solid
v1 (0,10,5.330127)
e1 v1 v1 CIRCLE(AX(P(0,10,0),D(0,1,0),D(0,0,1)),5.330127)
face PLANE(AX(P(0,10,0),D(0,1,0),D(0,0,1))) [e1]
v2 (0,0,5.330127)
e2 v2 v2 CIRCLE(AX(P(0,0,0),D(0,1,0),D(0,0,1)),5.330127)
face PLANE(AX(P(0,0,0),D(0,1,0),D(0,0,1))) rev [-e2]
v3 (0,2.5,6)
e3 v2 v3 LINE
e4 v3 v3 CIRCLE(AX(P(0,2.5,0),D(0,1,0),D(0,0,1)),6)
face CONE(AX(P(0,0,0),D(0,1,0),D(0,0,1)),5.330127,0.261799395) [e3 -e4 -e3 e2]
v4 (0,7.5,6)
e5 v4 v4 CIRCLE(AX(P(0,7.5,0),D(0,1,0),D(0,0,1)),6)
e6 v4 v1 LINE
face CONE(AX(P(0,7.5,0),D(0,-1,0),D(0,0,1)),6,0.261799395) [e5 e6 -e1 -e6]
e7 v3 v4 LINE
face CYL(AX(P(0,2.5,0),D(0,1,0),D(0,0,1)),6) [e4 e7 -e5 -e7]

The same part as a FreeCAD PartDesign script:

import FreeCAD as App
import Part
import Sketcher
from FreeCAD import Vector
Q = App.Units.Quantity


def add_polygon(sketch, points):
    """Adds a closed chain of lines whose ends are joined by coincident constraints."""
    first, n = sketch.GeometryCount, len(points)
    for a, b in zip(points, points[1:] + points[:1]):
        sketch.addGeometry(Part.LineSegment(App.Vector(*a, 0), App.Vector(*b, 0)), False)
    for i in range(n):
        sketch.addConstraint(Sketcher.Constraint("Coincident", first + i, 2, first + (i + 1) % n, 1))

doc = App.newDocument("Part")
body = doc.addObject("PartDesign::Body", "Body")

# Sketch on YZ plane
sketch1 = body.newObject("Sketcher::SketchObject", "Sketch")
sketch1.AttachmentSupport = (doc.getObject("YZ_Plane"), [""])
sketch1.MapMode = "FlatFace"
add_polygon(sketch1, [(0, 5.3), (0, 0), (10, 0), (10, 5.3), (7.5, 6), (2.5, 6)])  # lines 0-5
sketch1.addConstraint([
    Sketcher.Constraint("Vertical", 0),
    Sketcher.Constraint("Horizontal", 1),
    Sketcher.Constraint("Vertical", 2),
    Sketcher.Constraint("Horizontal", 4),
    Sketcher.Constraint("Coincident", 0, 2, -1, 1),
    Sketcher.Constraint("Horizontal", 2, 2, 5, 2),
    Sketcher.Constraint("Equal", 3, 5),
    Sketcher.Constraint("DistanceX", 1, 1, 1, 2, 10.0),
    Sketcher.Constraint("DistanceX", 4, 2, 4, 1, 5.0),
    Sketcher.Constraint("Angle", 3, Q("165 deg")),
    Sketcher.Constraint("DistanceY", -1, 1, 3, 2, 6.0),
])
revolution = body.newObject("PartDesign::Revolution", "Revolution")
revolution.Profile = sketch1
revolution.ReferenceAxis = (sketch1, ["H_Axis"])
revolution.Angle = 360

doc.recompute()
